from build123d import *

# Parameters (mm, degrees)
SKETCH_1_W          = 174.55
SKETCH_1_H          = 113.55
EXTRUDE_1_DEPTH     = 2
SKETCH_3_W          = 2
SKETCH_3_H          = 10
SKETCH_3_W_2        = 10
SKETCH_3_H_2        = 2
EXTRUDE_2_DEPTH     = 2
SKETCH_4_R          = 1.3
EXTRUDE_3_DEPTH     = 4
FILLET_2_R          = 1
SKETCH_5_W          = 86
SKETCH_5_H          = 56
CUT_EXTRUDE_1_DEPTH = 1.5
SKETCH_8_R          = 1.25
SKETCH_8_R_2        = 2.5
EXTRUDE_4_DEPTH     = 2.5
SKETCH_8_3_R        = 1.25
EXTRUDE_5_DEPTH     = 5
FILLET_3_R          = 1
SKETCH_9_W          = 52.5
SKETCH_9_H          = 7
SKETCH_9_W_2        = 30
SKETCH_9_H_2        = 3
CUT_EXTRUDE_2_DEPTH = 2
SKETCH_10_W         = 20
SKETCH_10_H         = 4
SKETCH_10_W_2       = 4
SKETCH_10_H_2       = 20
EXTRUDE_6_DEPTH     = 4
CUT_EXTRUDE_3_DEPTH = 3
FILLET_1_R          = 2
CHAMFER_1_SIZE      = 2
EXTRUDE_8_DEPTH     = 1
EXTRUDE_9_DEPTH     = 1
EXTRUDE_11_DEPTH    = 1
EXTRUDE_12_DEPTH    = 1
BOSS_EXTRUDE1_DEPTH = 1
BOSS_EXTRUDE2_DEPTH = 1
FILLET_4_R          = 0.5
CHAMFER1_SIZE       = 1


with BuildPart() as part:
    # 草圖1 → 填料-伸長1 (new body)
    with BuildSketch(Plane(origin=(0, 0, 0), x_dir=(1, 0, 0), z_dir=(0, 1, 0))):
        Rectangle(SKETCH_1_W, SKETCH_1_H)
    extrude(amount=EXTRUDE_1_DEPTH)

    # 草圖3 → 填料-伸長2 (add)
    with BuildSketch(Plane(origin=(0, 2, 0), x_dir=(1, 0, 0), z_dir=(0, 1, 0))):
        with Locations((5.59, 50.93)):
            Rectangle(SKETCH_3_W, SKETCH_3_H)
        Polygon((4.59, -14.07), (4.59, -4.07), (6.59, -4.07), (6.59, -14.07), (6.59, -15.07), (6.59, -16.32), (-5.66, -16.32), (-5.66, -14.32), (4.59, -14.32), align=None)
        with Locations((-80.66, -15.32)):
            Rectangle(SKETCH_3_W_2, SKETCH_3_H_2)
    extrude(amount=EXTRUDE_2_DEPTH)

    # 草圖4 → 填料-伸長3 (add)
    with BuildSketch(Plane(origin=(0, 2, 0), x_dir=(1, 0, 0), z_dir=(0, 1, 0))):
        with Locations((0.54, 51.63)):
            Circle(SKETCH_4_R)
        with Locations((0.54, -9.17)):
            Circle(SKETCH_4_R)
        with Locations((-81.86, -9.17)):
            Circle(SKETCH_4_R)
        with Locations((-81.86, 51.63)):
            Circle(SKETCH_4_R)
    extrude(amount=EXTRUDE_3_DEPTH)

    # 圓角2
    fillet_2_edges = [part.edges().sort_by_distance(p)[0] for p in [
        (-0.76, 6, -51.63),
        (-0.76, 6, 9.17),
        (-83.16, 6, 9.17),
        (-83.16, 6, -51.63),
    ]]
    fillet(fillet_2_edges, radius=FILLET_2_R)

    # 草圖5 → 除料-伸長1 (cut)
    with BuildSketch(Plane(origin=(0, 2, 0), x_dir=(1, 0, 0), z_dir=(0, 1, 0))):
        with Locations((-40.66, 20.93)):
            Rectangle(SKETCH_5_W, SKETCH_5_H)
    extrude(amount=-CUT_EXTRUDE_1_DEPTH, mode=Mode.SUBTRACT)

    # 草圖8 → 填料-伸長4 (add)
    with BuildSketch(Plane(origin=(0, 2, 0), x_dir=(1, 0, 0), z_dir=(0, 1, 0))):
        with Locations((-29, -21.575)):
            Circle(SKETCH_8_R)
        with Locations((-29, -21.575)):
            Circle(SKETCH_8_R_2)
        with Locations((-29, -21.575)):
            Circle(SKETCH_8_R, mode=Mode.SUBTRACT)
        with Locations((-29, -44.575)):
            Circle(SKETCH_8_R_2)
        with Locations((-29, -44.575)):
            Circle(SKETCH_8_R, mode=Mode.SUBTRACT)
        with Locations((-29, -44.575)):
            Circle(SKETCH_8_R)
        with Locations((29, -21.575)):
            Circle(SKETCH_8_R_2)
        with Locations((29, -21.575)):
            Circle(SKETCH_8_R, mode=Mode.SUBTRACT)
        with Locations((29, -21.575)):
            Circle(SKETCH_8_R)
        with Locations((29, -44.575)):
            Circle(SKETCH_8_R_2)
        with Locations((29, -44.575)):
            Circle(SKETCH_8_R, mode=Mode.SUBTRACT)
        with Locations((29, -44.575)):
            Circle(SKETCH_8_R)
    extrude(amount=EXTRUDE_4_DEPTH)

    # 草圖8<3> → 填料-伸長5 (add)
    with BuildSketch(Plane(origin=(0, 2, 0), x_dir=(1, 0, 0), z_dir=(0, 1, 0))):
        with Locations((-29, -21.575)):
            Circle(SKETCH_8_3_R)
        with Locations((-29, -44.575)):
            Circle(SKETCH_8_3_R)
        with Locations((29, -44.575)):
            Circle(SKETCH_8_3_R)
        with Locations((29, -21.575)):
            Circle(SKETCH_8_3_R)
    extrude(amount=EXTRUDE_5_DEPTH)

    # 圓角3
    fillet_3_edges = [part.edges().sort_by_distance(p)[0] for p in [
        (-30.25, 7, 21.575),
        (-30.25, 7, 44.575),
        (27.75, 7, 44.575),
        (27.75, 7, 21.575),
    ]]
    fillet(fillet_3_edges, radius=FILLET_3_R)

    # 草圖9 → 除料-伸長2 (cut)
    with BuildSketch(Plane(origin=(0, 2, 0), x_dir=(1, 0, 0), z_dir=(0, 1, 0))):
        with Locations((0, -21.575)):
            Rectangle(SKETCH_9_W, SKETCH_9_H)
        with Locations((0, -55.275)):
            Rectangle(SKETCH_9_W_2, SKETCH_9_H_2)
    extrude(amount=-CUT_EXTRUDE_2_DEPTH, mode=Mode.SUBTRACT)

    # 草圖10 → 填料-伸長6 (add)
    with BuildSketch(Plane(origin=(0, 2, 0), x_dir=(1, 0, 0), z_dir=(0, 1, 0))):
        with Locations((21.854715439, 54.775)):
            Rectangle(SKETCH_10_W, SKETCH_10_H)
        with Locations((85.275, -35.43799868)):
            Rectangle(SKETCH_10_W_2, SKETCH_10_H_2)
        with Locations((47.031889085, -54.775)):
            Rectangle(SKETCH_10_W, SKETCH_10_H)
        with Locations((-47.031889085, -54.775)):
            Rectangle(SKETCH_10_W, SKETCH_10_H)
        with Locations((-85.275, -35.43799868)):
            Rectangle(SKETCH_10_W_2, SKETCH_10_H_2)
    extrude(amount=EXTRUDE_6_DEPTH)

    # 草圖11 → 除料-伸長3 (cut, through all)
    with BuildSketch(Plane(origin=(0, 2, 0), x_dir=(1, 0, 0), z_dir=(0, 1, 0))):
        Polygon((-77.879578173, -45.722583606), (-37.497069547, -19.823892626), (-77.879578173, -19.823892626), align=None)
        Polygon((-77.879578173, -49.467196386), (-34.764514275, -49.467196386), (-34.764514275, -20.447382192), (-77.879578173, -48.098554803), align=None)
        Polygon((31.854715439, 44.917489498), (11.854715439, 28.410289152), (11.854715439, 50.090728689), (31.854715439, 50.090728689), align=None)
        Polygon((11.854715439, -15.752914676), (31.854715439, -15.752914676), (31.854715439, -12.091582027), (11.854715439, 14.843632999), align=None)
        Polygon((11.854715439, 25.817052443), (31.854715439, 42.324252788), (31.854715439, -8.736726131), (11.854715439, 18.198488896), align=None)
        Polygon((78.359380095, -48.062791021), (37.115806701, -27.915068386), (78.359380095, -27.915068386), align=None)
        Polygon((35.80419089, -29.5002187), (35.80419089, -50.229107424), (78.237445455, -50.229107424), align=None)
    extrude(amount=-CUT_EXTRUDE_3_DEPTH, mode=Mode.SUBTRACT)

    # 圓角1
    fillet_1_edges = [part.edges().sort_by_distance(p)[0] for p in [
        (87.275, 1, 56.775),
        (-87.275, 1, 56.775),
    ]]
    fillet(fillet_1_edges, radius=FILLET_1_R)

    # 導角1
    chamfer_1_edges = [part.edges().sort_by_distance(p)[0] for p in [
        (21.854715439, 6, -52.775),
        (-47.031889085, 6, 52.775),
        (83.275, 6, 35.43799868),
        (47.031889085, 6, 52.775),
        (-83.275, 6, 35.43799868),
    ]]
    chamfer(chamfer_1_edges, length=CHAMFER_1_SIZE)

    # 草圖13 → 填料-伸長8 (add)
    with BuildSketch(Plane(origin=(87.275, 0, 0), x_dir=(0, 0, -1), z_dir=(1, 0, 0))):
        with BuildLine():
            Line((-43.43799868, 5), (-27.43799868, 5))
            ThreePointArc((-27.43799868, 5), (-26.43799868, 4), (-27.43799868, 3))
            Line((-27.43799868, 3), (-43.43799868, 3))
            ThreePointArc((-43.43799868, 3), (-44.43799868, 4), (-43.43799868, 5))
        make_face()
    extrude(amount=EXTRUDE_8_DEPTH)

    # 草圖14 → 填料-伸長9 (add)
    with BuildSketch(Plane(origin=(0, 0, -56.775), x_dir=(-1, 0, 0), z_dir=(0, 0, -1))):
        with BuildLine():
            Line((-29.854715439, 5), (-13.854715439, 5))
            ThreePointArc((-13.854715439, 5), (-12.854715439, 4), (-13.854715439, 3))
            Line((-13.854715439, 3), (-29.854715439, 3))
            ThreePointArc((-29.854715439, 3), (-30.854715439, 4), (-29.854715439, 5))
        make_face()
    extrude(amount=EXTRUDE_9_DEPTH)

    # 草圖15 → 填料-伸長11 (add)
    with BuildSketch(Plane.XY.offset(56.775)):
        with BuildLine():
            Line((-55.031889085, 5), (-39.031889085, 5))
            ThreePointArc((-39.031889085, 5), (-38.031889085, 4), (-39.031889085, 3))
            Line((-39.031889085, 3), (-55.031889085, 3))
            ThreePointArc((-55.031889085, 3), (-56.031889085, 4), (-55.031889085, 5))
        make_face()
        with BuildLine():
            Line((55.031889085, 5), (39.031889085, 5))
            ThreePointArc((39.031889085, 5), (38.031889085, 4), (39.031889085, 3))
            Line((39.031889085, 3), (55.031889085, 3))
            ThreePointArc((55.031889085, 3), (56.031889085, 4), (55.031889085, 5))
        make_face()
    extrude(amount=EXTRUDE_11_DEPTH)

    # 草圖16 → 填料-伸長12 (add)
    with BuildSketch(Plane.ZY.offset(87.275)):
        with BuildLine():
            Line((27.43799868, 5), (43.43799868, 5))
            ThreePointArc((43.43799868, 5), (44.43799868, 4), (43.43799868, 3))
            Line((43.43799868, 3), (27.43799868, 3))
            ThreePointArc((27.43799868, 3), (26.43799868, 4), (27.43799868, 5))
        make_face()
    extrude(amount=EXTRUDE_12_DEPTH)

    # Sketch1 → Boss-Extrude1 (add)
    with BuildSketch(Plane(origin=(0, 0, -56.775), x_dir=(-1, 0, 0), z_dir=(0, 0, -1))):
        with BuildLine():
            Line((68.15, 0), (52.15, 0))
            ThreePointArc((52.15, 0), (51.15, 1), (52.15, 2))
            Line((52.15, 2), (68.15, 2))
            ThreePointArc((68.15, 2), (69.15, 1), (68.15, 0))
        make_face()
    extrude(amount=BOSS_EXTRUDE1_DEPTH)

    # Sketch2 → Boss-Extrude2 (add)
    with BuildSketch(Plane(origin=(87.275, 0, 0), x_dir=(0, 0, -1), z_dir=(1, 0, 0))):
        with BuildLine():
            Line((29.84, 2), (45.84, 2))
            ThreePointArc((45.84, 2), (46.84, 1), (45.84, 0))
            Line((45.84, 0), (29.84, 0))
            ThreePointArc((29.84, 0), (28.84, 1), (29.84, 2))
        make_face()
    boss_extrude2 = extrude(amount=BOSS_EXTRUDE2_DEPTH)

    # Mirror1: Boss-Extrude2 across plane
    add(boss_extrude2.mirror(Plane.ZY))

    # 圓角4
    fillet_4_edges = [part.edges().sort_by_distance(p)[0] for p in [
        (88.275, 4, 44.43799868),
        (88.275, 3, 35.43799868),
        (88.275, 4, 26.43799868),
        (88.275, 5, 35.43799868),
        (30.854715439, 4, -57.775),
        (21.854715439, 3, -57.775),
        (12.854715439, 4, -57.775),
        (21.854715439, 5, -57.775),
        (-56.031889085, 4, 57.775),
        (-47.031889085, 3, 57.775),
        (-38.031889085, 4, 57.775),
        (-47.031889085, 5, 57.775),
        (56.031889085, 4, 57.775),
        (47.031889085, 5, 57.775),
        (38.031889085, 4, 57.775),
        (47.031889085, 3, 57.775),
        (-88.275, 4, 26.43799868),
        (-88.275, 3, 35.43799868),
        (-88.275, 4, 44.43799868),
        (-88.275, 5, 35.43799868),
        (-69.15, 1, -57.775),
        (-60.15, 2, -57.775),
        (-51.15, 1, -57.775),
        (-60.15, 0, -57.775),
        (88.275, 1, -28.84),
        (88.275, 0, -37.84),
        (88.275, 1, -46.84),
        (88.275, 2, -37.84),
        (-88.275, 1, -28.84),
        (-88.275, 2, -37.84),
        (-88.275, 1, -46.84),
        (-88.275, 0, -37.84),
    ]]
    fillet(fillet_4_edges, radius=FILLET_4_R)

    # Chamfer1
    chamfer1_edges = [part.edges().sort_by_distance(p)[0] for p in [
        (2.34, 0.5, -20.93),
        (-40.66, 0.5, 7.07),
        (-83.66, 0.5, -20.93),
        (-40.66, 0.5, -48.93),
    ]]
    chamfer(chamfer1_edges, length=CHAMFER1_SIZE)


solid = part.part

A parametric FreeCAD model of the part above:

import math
import FreeCAD as App
import Part
import Sketcher


def edges_at(feature, points):
    """Names of the edges that pass closest to the given points."""
    edges = feature.Shape.Edges
    near = lambda p: min(range(len(edges)), key=lambda i: edges[i].distToShape(Part.Vertex(*p))[0])
    return sorted({f"Edge{near(p) + 1}" for p in points})


def add_polygon(sketch, points):
    """Adds a closed chain of lines whose ends are joined by coincident constraints."""
    first, n = sketch.GeometryCount, len(points)
    for a, b in zip(points, points[1:] + points[:1]):
        sketch.addGeometry(Part.LineSegment(App.Vector(*a, 0), App.Vector(*b, 0)), False)
    for i in range(n):
        sketch.addConstraint(Sketcher.Constraint("Coincident", first + i, 2, first + (i + 1) % n, 1))

doc = App.newDocument("Part")
body = doc.addObject("PartDesign::Body", "Body")

# Sketch on XZ plane
sketch1 = body.newObject("Sketcher::SketchObject", "Sketch")
sketch1.AttachmentSupport = (doc.getObject("XZ_Plane"), [""])
sketch1.MapMode = "FlatFace"
add_polygon(sketch1, [(-87, -57), (-87, 57), (87, 57), (87, -57)])  # lines 0-3
sketch1.addConstraint([
    Sketcher.Constraint("Vertical", 0),
    Sketcher.Constraint("Horizontal", 1),
    Sketcher.Constraint("Vertical", 2),
    Sketcher.Constraint("Horizontal", 3),
    Sketcher.Constraint("Symmetric", 0, 2, 2, 2, -1, 1),
    Sketcher.Constraint("DistanceX", 1, 1, 1, 2, 174.55),
    Sketcher.Constraint("DistanceY", 0, 1, 0, 2, 113.55),
])
pad1 = body.newObject("PartDesign::Pad", "Pad")
pad1.Profile = sketch1
pad1.Length = 2
pad1.Reversed = True

# Sketch on XZ plane
sketch2 = body.newObject("Sketcher::SketchObject", "Sketch001")
sketch2.AttachmentSupport = (doc.getObject("XZ_Plane"), [""])
sketch2.MapMode = "FlatFace"
sketch2.AttachmentOffset = App.Placement(App.Vector(0, 0, -2), App.Rotation())
add_polygon(sketch2, [(4.6, -55.9), (4.6, -45.9), (6.6, -45.9), (6.6, -55.9)])  # lines 0-3
add_polygon(sketch2, [(4.6, 4.1), (4.6, 14.3), (-5.7, 14.3), (-5.7, 16.3), (6.6, 16.3), (6.6, 4.1)])  # lines 4-9
add_polygon(sketch2, [(-85.7, 14.3), (-85.7, 16.3), (-75.7, 16.3), (-75.7, 14.3)])  # lines 10-13
sketch2.addConstraint([
    Sketcher.Constraint("Vertical", 0),
    Sketcher.Constraint("Horizontal", 1),
    Sketcher.Constraint("Vertical", 2),
    Sketcher.Constraint("Horizontal", 3),
    Sketcher.Constraint("Vertical", 4),
    Sketcher.Constraint("Horizontal", 5),
    Sketcher.Constraint("Vertical", 6),
    Sketcher.Constraint("Horizontal", 7),
    Sketcher.Constraint("Vertical", 8),
    Sketcher.Constraint("Horizontal", 9),
    Sketcher.Constraint("Vertical", 10),
    Sketcher.Constraint("Horizontal", 11),
    Sketcher.Constraint("Vertical", 12),
    Sketcher.Constraint("Horizontal", 13),
    Sketcher.Constraint("Horizontal", 7, 2, 10, 2),
    Sketcher.Constraint("Horizontal", 5, 2, 12, 2),
    Sketcher.Constraint("Vertical", 3, 2, 4, 2),
    Sketcher.Constraint("Vertical", 2, 2, 7, 2),
    Sketcher.Constraint("Equal", 13, 0),
    Sketcher.Constraint("Equal", 5, 4),
    Sketcher.Constraint("Equal", 9, 6),
    Sketcher.Constraint("DistanceX", 1, 1, 1, 2, 2.0),
    Sketcher.Constraint("DistanceX", 11, 1, 11, 2, 10.0),
    Sketcher.Constraint("DistanceY", 1, 2, 8, 2, 50.0),
    Sketcher.Constraint("DistanceX", 10, 2, 6, 2, 80.0),
    Sketcher.Constraint("DistanceX", 5, 2, 5, 1, 10.25),
    Sketcher.Constraint("DistanceX", -1, 1, 0, 2, 4.59),
    Sketcher.Constraint("DistanceY", 0, 2, -1, 1, 45.93),
])
pad2 = body.newObject("PartDesign::Pad", "Pad001")
pad2.Profile = sketch2
pad2.Length = 2
pad2.Reversed = True

# Sketch on XZ plane
sketch3 = body.newObject("Sketcher::SketchObject", "Sketch002")
sketch3.AttachmentSupport = (doc.getObject("XZ_Plane"), [""])
sketch3.MapMode = "FlatFace"
sketch3.AttachmentOffset = App.Placement(App.Vector(0, 0, -2), App.Rotation())
sketch3.addGeometry([
    Part.Circle(App.Vector(0.5, -51.6, 0), App.Vector(0, 0, 1), 1.3),
    Part.Circle(App.Vector(0.5, 9.2, 0), App.Vector(0, 0, 1), 1.3),
    Part.Circle(App.Vector(-81.9, 9.2, 0), App.Vector(0, 0, 1), 1.3),
    Part.Circle(App.Vector(-81.9, -51.6, 0), App.Vector(0, 0, 1), 1.3),
], False)
sketch3.addConstraint([
    Sketcher.Constraint("Equal", 0, 1),
    Sketcher.Constraint("Equal", 1, 2),
    Sketcher.Constraint("Equal", 2, 3),
    Sketcher.Constraint("Horizontal", 1, 3, 2, 3),
    Sketcher.Constraint("Horizontal", 0, 3, 3, 3),
    Sketcher.Constraint("Vertical", 0, 3, 1, 3),
    Sketcher.Constraint("Vertical", 2, 3, 3, 3),
    Sketcher.Constraint("Diameter", 0, 2.6),
    Sketcher.Constraint("DistanceY", 0, 3, 1, 3, 60.8),
    Sketcher.Constraint("DistanceX", 2, 3, 1, 3, 82.4),
    Sketcher.Constraint("DistanceX", -1, 1, 0, 3, 0.54),
    Sketcher.Constraint("DistanceY", 0, 3, -1, 1, 51.63),
])
pad3 = body.newObject("PartDesign::Pad", "Pad002")
pad3.Profile = sketch3
pad3.Length = 4
pad3.Reversed = True
doc.recompute()

fillet = body.newObject("PartDesign::Fillet", "Fillet")
fillet.Base = (pad3, edges_at(pad3, [
    (-0.76, 6, -51.63),
    (-0.76, 6, 9.17),
    (-83.16, 6, 9.17),
    (-83.16, 6, -51.63),
]))
fillet.Radius = 1

# Sketch on XZ plane
sketch4 = body.newObject("Sketcher::SketchObject", "Sketch003")
sketch4.AttachmentSupport = (doc.getObject("XZ_Plane"), [""])
sketch4.MapMode = "FlatFace"
sketch4.AttachmentOffset = App.Placement(App.Vector(0, 0, -2), App.Rotation())
add_polygon(sketch4, [(-84, -49), (-84, 7), (2, 7), (2, -49)])  # lines 0-3
sketch4.addConstraint([
    Sketcher.Constraint("Vertical", 0),
    Sketcher.Constraint("Horizontal", 1),
    Sketcher.Constraint("Vertical", 2),
    Sketcher.Constraint("Horizontal", 3),
    Sketcher.Constraint("DistanceX", 1, 1, 1, 2, 86.0),
    Sketcher.Constraint("DistanceY", 0, 1, 0, 2, 56.0),
    Sketcher.Constraint("DistanceX", 0, 2, -1, 1, 83.66),
    Sketcher.Constraint("DistanceY", -1, 1, 0, 2, 7.07),
])
pocket1 = body.newObject("PartDesign::Pocket", "Pocket")
pocket1.Profile = sketch4
pocket1.Length = 1.5
pocket1.Reversed = True

# Sketch on XZ plane
sketch5 = body.newObject("Sketcher::SketchObject", "Sketch004")
sketch5.AttachmentSupport = (doc.getObject("XZ_Plane"), [""])
sketch5.MapMode = "FlatFace"
sketch5.AttachmentOffset = App.Placement(App.Vector(0, 0, -2), App.Rotation())
sketch5.addGeometry([
    Part.Circle(App.Vector(-29, 21.6, 0), App.Vector(0, 0, 1), 2.5),  # 0
    Part.Circle(App.Vector(-29, 21.6, 0), App.Vector(0, 0, 1), 1.2),  # 1
    Part.Circle(App.Vector(-29, 44.6, 0), App.Vector(0, 0, 1), 2.5),  # 2
    Part.Circle(App.Vector(29, 21.6, 0), App.Vector(0, 0, 1), 2.5),  # 3
    Part.Circle(App.Vector(29, 44.6, 0), App.Vector(0, 0, 1), 2.5),  # 4
], False)
sketch5.addConstraint([
    Sketcher.Constraint("Coincident", 1, 3, 0, 3),
    Sketcher.Constraint("Equal", 0, 2),
    Sketcher.Constraint("Equal", 2, 3),
    Sketcher.Constraint("Equal", 3, 4),
    Sketcher.Constraint("Symmetric", 0, 3, 3, 3, -2),
    Sketcher.Constraint("Symmetric", 2, 3, 4, 3, -2),
    Sketcher.Constraint("Vertical", 1, 3, 2, 3),
    Sketcher.Constraint("Diameter", 0, 5.0),
    Sketcher.Constraint("Diameter", 1, 2.5),
    Sketcher.Constraint("DistanceX", 0, 3, -1, 1, 29.0),
    Sketcher.Constraint("DistanceY", 0, 3, 2, 3, 23.0),
    Sketcher.Constraint("DistanceY", -1, 1, 0, 3, 21.575),
])
pad4 = body.newObject("PartDesign::Pad", "Pad003")
pad4.Profile = sketch5
pad4.Length = 2.5
pad4.Reversed = True

# Sketch on XZ plane
sketch6 = body.newObject("Sketcher::SketchObject", "Sketch005")
sketch6.AttachmentSupport = (doc.getObject("XZ_Plane"), [""])
sketch6.MapMode = "FlatFace"
sketch6.AttachmentOffset = App.Placement(App.Vector(0, 0, -2), App.Rotation())
sketch6.addGeometry([
    Part.Circle(App.Vector(-29, 21.6, 0), App.Vector(0, 0, 1), 1.2),
    Part.Circle(App.Vector(-29, 44.6, 0), App.Vector(0, 0, 1), 1.2),
    Part.Circle(App.Vector(29, 44.6, 0), App.Vector(0, 0, 1), 1.2),
    Part.Circle(App.Vector(29, 21.6, 0), App.Vector(0, 0, 1), 1.2),
], False)
sketch6.addConstraint([
    Sketcher.Constraint("Equal", 0, 1),
    Sketcher.Constraint("Equal", 1, 2),
    Sketcher.Constraint("Equal", 2, 3),
    Sketcher.Constraint("Symmetric", 1, 3, 2, 3, -2),
    Sketcher.Constraint("Symmetric", 0, 3, 3, 3, -2),
    Sketcher.Constraint("Vertical", 0, 3, 1, 3),
    Sketcher.Constraint("Diameter", 0, 2.5),
    Sketcher.Constraint("DistanceX", 0, 3, -1, 1, 29.0),
    Sketcher.Constraint("DistanceY", 0, 3, 1, 3, 23.0),
    Sketcher.Constraint("DistanceY", -1, 1, 0, 3, 21.575),
])
pad5 = body.newObject("PartDesign::Pad", "Pad004")
pad5.Profile = sketch6
pad5.Length = 5
pad5.Reversed = True
doc.recompute()

fillet2 = body.newObject("PartDesign::Fillet", "Fillet001")
fillet2.Base = (pad5, edges_at(pad5, [
    (-30.25, 7, 21.575),
    (-30.25, 7, 44.575),
    (27.75, 7, 44.575),
    (27.75, 7, 21.575),
]))
fillet2.Radius = 1

# Sketch on XZ plane
sketch7 = body.newObject("Sketcher::SketchObject", "Sketch006")
sketch7.AttachmentSupport = (doc.getObject("XZ_Plane"), [""])
sketch7.MapMode = "FlatFace"
sketch7.AttachmentOffset = App.Placement(App.Vector(0, 0, -2), App.Rotation())
add_polygon(sketch7, [(-26.2, 18.1), (-26.2, 25.1), (26.2, 25.1), (26.2, 18.1)])  # lines 0-3
add_polygon(sketch7, [(-15, 53.8), (-15, 56.8), (15, 56.8), (15, 53.8)])  # lines 4-7
sketch7.addConstraint([
    Sketcher.Constraint("Vertical", 0),
    Sketcher.Constraint("Horizontal", 1),
    Sketcher.Constraint("Vertical", 2),
    Sketcher.Constraint("Horizontal", 3),
    Sketcher.Constraint("Vertical", 4),
    Sketcher.Constraint("Horizontal", 5),
    Sketcher.Constraint("Vertical", 6),
    Sketcher.Constraint("Horizontal", 7),
    Sketcher.Constraint("DistanceX", 5, 1, 5, 2, 30.0),
    Sketcher.Constraint("DistanceY", 0, 1, 0, 2, 7.0),
    Sketcher.Constraint("DistanceY", 4, 1, 4, 2, 3.0),
    Sketcher.Constraint("DistanceX", 1, 1, 1, 2, 52.5),
    Sketcher.Constraint("DistanceX", 4, 2, -1, 1, 15.0),
    Sketcher.Constraint("DistanceY", 0, 2, 4, 2, 31.7),
    Sketcher.Constraint("DistanceX", 0, 2, -1, 1, 26.25),
    Sketcher.Constraint("DistanceY", -1, 1, 0, 2, 25.075),
])
pocket2 = body.newObject("PartDesign::Pocket", "Pocket001")
pocket2.Profile = sketch7
pocket2.Length = 2
pocket2.Reversed = True

# Sketch on XZ plane
sketch8 = body.newObject("Sketcher::SketchObject", "Sketch007")
sketch8.AttachmentSupport = (doc.getObject("XZ_Plane"), [""])
sketch8.MapMode = "FlatFace"
sketch8.AttachmentOffset = App.Placement(App.Vector(0, 0, -2), App.Rotation())
add_polygon(sketch8, [(11.9, -56.8), (11.9, -52.8), (31.9, -52.8), (31.9, -56.8)])  # lines 0-3
add_polygon(sketch8, [(83.3, 25.4), (83.3, 45.4), (87.3, 45.4), (87.3, 25.4)])  # lines 4-7
add_polygon(sketch8, [(37, 52.8), (37, 56.8), (57, 56.8), (57, 52.8)])  # lines 8-11
add_polygon(sketch8, [(-57, 52.8), (-57, 56.8), (-37, 56.8), (-37, 52.8)])  # lines 12-15
add_polygon(sketch8, [(-87.3, 25.4), (-87.3, 45.4), (-83.3, 45.4), (-83.3, 25.4)])  # lines 16-19
sketch8.addConstraint([
    Sketcher.Constraint("Vertical", 0),
    Sketcher.Constraint("Horizontal", 1),
    Sketcher.Constraint("Vertical", 2),
    Sketcher.Constraint("Horizontal", 3),
    Sketcher.Constraint("Vertical", 4),
    Sketcher.Constraint("Horizontal", 5),
    Sketcher.Constraint("Vertical", 6),
    Sketcher.Constraint("Horizontal", 7),
    Sketcher.Constraint("Vertical", 8),
    Sketcher.Constraint("Horizontal", 9),
    Sketcher.Constraint("Vertical", 10),
    Sketcher.Constraint("Horizontal", 11),
    Sketcher.Constraint("Vertical", 12),
    Sketcher.Constraint("Horizontal", 13),
    Sketcher.Constraint("Vertical", 14),
    Sketcher.Constraint("Horizontal", 15),
    Sketcher.Constraint("Vertical", 16),
    Sketcher.Constraint("Horizontal", 17),
    Sketcher.Constraint("Vertical", 18),
    Sketcher.Constraint("Horizontal", 19),
    Sketcher.Constraint("Symmetric", 9, 2, 12, 2, -2),
    Sketcher.Constraint("Symmetric", 11, 2, 14, 2, -2),
    Sketcher.Constraint("Symmetric", 5, 2, 16, 2, -2),
    Sketcher.Constraint("Symmetric", 7, 2, 18, 2, -2),
    Sketcher.Constraint("Equal", 3, 9),
    Sketcher.Constraint("Equal", 19, 0),
    Sketcher.Constraint("Equal", 15, 4),
    Sketcher.Constraint("Equal", 2, 8),
    Sketcher.Constraint("DistanceX", 1, 1, 1, 2, 20.0),
    Sketcher.Constraint("DistanceX", 5, 1, 5, 2, 4.0),
    Sketcher.Constraint("DistanceY", 1, 2, 8, 2, 109.55),
    Sketcher.Constraint("DistanceY", 0, 2, -1, 1, 52.775),
    Sketcher.Constraint("DistanceX", -1, 1, 4, 2, 83.275),
    Sketcher.Constraint("DistanceY", -1, 1, 4, 2, 45.437999),
    Sketcher.Constraint("DistanceX", -1, 1, 8, 2, 37.031889),
    Sketcher.Constraint("DistanceX", -1, 1, 0, 2, 11.854715),
])
pad6 = body.newObject("PartDesign::Pad", "Pad005")
pad6.Profile = sketch8
pad6.Length = 4
pad6.Reversed = True

# Sketch on XZ plane
sketch9 = body.newObject("Sketcher::SketchObject", "Sketch008")
sketch9.AttachmentSupport = (doc.getObject("XZ_Plane"), [""])
sketch9.MapMode = "FlatFace"
sketch9.AttachmentOffset = App.Placement(App.Vector(0, 0, -2), App.Rotation())
add_polygon(sketch9, [(-77.9, 45.7), (-37.5, 19.8), (-77.9, 19.8)])  # lines 0-2
add_polygon(sketch9, [(-77.9, 49.5), (-34.8, 49.5), (-34.8, 20.4), (-77.9, 48.1)])  # lines 3-6
add_polygon(sketch9, [(11.9, -28.4), (31.9, -44.9), (31.9, -50.1), (11.9, -50.1)])  # lines 7-10
add_polygon(sketch9, [(11.9, 15.8), (31.9, 15.8), (31.9, 12.1), (11.9, -14.8)])  # lines 11-14
add_polygon(sketch9, [(31.9, -42.3), (11.9, -25.8), (11.9, -18.2), (31.9, 8.7)])  # lines 15-18
add_polygon(sketch9, [(37.1, 27.9), (78.4, 48.1), (78.4, 27.9)])  # lines 19-21
add_polygon(sketch9, [(35.8, 29.5), (35.8, 50.2), (78.2, 50.2)])  # lines 22-24
sketch9.addConstraint([
    Sketcher.Constraint("Horizontal", 1),
    Sketcher.Constraint("Vertical", 2),
    Sketcher.Constraint("Horizontal", 3),
    Sketcher.Constraint("Vertical", 4),
    Sketcher.Constraint("Vertical", 6),
    Sketcher.Constraint("Vertical", 8),
    Sketcher.Constraint("Horizontal", 9),
    Sketcher.Constraint("Vertical", 10),
    Sketcher.Constraint("Horizontal", 11),
    Sketcher.Constraint("Vertical", 12),
    Sketcher.Constraint("Vertical", 14),
    Sketcher.Constraint("Vertical", 16),
    Sketcher.Constraint("Vertical", 18),
    Sketcher.Constraint("Vertical", 20),
    Sketcher.Constraint("Horizontal", 21),
    Sketcher.Constraint("Vertical", 22),
    Sketcher.Constraint("Horizontal", 23),
    Sketcher.Constraint("Parallel", 0, 5),
    Sketcher.Constraint("Parallel", 7, 15),
    Sketcher.Constraint("Parallel", 13, 17),
    Sketcher.Constraint("Parallel", 19, 24),
    Sketcher.Constraint("Vertical", 2, 2, 5, 2),
    Sketcher.Constraint("Vertical", 8, 2, 11, 2),
    Sketcher.Constraint("Vertical", 10, 2, 13, 2),
    Sketcher.Constraint("Vertical", 14, 2, 15, 2),
    Sketcher.Constraint("Vertical", 12, 2, 17, 2),
    Sketcher.Constraint("DistanceX", 9, 2, 9, 1, 20.0),
    Sketcher.Constraint("DistanceY", 7, 2, 16, 2, 26.719001),
    Sketcher.Constraint("DistanceX", 1, 2, 1, 1, 40.382509),
    Sketcher.Constraint("DistanceY", 2, 1, 2, 2, 25.898691),
    Sketcher.Constraint("DistanceY", 6, 1, 6, 2, 1.368642),
    Sketcher.Constraint("DistanceY", 8, 2, 8, 1, 5.173239),
    Sketcher.Constraint("DistanceY", 10, 1, 10, 2, 21.68044),
    Sketcher.Constraint("DistanceY", 18, 2, 18, 1, 51.060979),
    Sketcher.Constraint("DistanceY", 22, 1, 22, 2, 20.728889),
    Sketcher.Constraint("DistanceY", 4, 2, 2, 2, 25.275201),
    Sketcher.Constraint("Distance", 13, 33.548559),
    Sketcher.Constraint("DistanceX", 3, 1, 3, 2, 43.115064),
    Sketcher.Constraint("DistanceX", 21, 2, 21, 1, 41.243573),
    Sketcher.Constraint("DistanceX", 23, 1, 23, 2, 42.433255),
    Sketcher.Constraint("DistanceY", 12, 2, 12, 1, 3.661333),
    Sketcher.Constraint("DistanceX", 0, 2, -1, 1, 37.49707),
    Sketcher.Constraint("DistanceY", 7, 2, -1, 1, 44.917489),
    Sketcher.Constraint("DistanceX", -1, 1, 19, 2, 78.35938),
    Sketcher.Constraint("DistanceY", -1, 1, 19, 2, 48.062791),
    Sketcher.Constraint("DistanceX", -1, 1, 22, 2, 35.804191),
    Sketcher.Constraint("DistanceY", -1, 1, 24, 2, 29.500219),
    Sketcher.Constraint("DistanceX", 4, 2, 7, 2, 66.61923),
    Sketcher.Constraint("DistanceY", 7, 2, 4, 2, 65.364872),
    Sketcher.Constraint("DistanceY", 10, 2, 12, 2, 40.501871),
])
pocket3 = body.newObject("PartDesign::Pocket", "Pocket002")
pocket3.Profile = sketch9
pocket3.Type = "ThroughAll"
pocket3.Reversed = True
doc.recompute()

fillet3 = body.newObject("PartDesign::Fillet", "Fillet002")
fillet3.Base = (pocket3, edges_at(pocket3, [(87.275, 1, 56.775), (-87.275, 1, 56.775)]))
fillet3.Radius = 2
doc.recompute()

chamfer = body.newObject("PartDesign::Chamfer", "Chamfer")
chamfer.Base = (fillet3, edges_at(fillet3, [
    (21.855, 6, -52.775),
    (-47.032, 6, 52.775),
    (83.275, 6, 35.438),
    (47.032, 6, 52.775),
    (-83.275, 6, 35.438),
]))
chamfer.Size = 2

# Sketch on YZ plane
sketch10 = body.newObject("Sketcher::SketchObject", "Sketch009")
sketch10.AttachmentSupport = (doc.getObject("YZ_Plane"), [""])
sketch10.MapMode = "FlatFace"
sketch10.AttachmentOffset = App.Placement(App.Vector(0, 0, 87.275), App.Rotation())
sketch10.addGeometry([
    Part.LineSegment(App.Vector(5, 27.4, 0), App.Vector(5, 43.4, 0)),
    Part.ArcOfCircle(Part.Circle(App.Vector(4, 43.4, 0), App.Vector(0, 0, 1), 1), math.radians(0), math.radians(180)),
    Part.LineSegment(App.Vector(3, 43.4, 0), App.Vector(3, 27.4, 0)),
    Part.ArcOfCircle(Part.Circle(App.Vector(4, 27.4, 0), App.Vector(0, 0, 1), 1), math.radians(180), math.radians(360)),
], False)
sketch10.addConstraint([
    Sketcher.Constraint("Tangent", 0, 2, 1, 1),
    Sketcher.Constraint("Tangent", 1, 2, 2, 1),
    Sketcher.Constraint("Tangent", 2, 2, 3, 1),
    Sketcher.Constraint("Tangent", 3, 2, 0, 1),
    Sketcher.Constraint("Vertical", 0),
    Sketcher.Constraint("Vertical", 2),
    Sketcher.Constraint("Radius", 1, 1.0),
    Sketcher.Constraint("DistanceY", 0, 1, 0, 2, 16.0),
    Sketcher.Constraint("DistanceX", -1, 1, 1, 3, 4.0),
    Sketcher.Constraint("DistanceY", -1, 1, 1, 3, 43.437999),
])
pad7 = body.newObject("PartDesign::Pad", "Pad006")
pad7.Profile = sketch10
pad7.Length = 1

# Sketch on XY plane
sketch11 = body.newObject("Sketcher::SketchObject", "Sketch010")
sketch11.AttachmentSupport = (doc.getObject("XY_Plane"), [""])
sketch11.MapMode = "FlatFace"
sketch11.AttachmentOffset = App.Placement(App.Vector(0, 0, -56.775), App.Rotation())
sketch11.addGeometry([
    Part.LineSegment(App.Vector(13.9, 5, 0), App.Vector(29.9, 5, 0)),
    Part.ArcOfCircle(Part.Circle(App.Vector(29.9, 4, 0), App.Vector(0, 0, 1), 1), math.radians(-90), math.radians(90)),
    Part.LineSegment(App.Vector(29.9, 3, 0), App.Vector(13.9, 3, 0)),
    Part.ArcOfCircle(Part.Circle(App.Vector(13.9, 4, 0), App.Vector(0, 0, 1), 1), math.radians(90), math.radians(270)),
], False)
sketch11.addConstraint([
    Sketcher.Constraint("Tangent", 0, 2, 1, 2),
    Sketcher.Constraint("Tangent", 1, 1, 2, 1),
    Sketcher.Constraint("Tangent", 2, 2, 3, 2),
    Sketcher.Constraint("Tangent", 3, 1, 0, 1),
    Sketcher.Constraint("Horizontal", 0),
    Sketcher.Constraint("Horizontal", 2),
    Sketcher.Constraint("Radius", 1, 1.0),
    Sketcher.Constraint("DistanceX", 0, 1, 0, 2, 16.0),
    Sketcher.Constraint("DistanceY", -1, 1, 1, 3, 4.0),
    Sketcher.Constraint("DistanceX", -1, 1, 1, 3, 29.854715),
])
pad8 = body.newObject("PartDesign::Pad", "Pad007")
pad8.Profile = sketch11
pad8.Length = 1
pad8.Reversed = True

# Sketch on XY plane
sketch12 = body.newObject("Sketcher::SketchObject", "Sketch011")
sketch12.AttachmentSupport = (doc.getObject("XY_Plane"), [""])
sketch12.MapMode = "FlatFace"
sketch12.AttachmentOffset = App.Placement(App.Vector(0, 0, 56.775), App.Rotation())
sketch12.addGeometry([
    Part.LineSegment(App.Vector(-39, 5, 0), App.Vector(-55, 5, 0)),  # 0
    Part.ArcOfCircle(Part.Circle(App.Vector(-55, 4, 0), App.Vector(0, 0, 1), 1), math.radians(90), math.radians(270)),  # 1
    Part.LineSegment(App.Vector(-55, 3, 0), App.Vector(-39, 3, 0)),  # 2
    Part.ArcOfCircle(Part.Circle(App.Vector(-39, 4, 0), App.Vector(0, 0, 1), 1), math.radians(-90), math.radians(90)),  # 3
    Part.LineSegment(App.Vector(55, 5, 0), App.Vector(39, 5, 0)),  # 4
    Part.ArcOfCircle(Part.Circle(App.Vector(39, 4, 0), App.Vector(0, 0, 1), 1), math.radians(90), math.radians(270)),  # 5
    Part.LineSegment(App.Vector(39, 3, 0), App.Vector(55, 3, 0)),  # 6
    Part.ArcOfCircle(Part.Circle(App.Vector(55, 4, 0), App.Vector(0, 0, 1), 1), math.radians(-90), math.radians(90)),  # 7
], False)
sketch12.addConstraint([
    Sketcher.Constraint("Tangent", 0, 2, 1, 1),
    Sketcher.Constraint("Tangent", 1, 2, 2, 1),
    Sketcher.Constraint("Tangent", 2, 2, 3, 1),
    Sketcher.Constraint("Tangent", 3, 2, 0, 1),
    Sketcher.Constraint("Tangent", 4, 2, 5, 1),
    Sketcher.Constraint("Tangent", 5, 2, 6, 1),
    Sketcher.Constraint("Tangent", 6, 2, 7, 1),
    Sketcher.Constraint("Tangent", 7, 2, 4, 1),
    Sketcher.Constraint("Horizontal", 0),
    Sketcher.Constraint("Horizontal", 2),
    Sketcher.Constraint("Horizontal", 4),
    Sketcher.Constraint("Horizontal", 6),
    Sketcher.Constraint("Equal", 3, 5),
    Sketcher.Constraint("Symmetric", 3, 3, 5, 3, -2),
    Sketcher.Constraint("Equal", 2, 4),
    Sketcher.Constraint("Radius", 1, 1.0),
    Sketcher.Constraint("DistanceX", 0, 2, 0, 1, 16.0),
    Sketcher.Constraint("DistanceY", -1, 1, 1, 3, 4.0),
    Sketcher.Constraint("DistanceX", 1, 3, -1, 1, 55.031889),
])
pad9 = body.newObject("PartDesign::Pad", "Pad008")
pad9.Profile = sketch12
pad9.Length = 1

# Sketch on YZ plane
sketch13 = body.newObject("Sketcher::SketchObject", "Sketch012")
sketch13.AttachmentSupport = (doc.getObject("YZ_Plane"), [""])
sketch13.MapMode = "FlatFace"
sketch13.AttachmentOffset = App.Placement(App.Vector(0, 0, -87.275), App.Rotation())
sketch13.addGeometry([
    Part.LineSegment(App.Vector(5, 43.4, 0), App.Vector(5, 27.4, 0)),
    Part.ArcOfCircle(Part.Circle(App.Vector(4, 27.4, 0), App.Vector(0, 0, 1), 1), math.radians(180), math.radians(360)),
    Part.LineSegment(App.Vector(3, 27.4, 0), App.Vector(3, 43.4, 0)),
    Part.ArcOfCircle(Part.Circle(App.Vector(4, 43.4, 0), App.Vector(0, 0, 1), 1), math.radians(0), math.radians(180)),
], False)
sketch13.addConstraint([
    Sketcher.Constraint("Tangent", 0, 2, 1, 2),
    Sketcher.Constraint("Tangent", 1, 1, 2, 1),
    Sketcher.Constraint("Tangent", 2, 2, 3, 2),
    Sketcher.Constraint("Tangent", 3, 1, 0, 1),
    Sketcher.Constraint("Vertical", 0),
    Sketcher.Constraint("Vertical", 2),
    Sketcher.Constraint("Radius", 1, 1.0),
    Sketcher.Constraint("DistanceY", 0, 2, 0, 1, 16.0),
    Sketcher.Constraint("DistanceX", -1, 1, 1, 3, 4.0),
    Sketcher.Constraint("DistanceY", -1, 1, 1, 3, 27.437999),
])
pad10 = body.newObject("PartDesign::Pad", "Pad009")
pad10.Profile = sketch13
pad10.Length = 1
pad10.Reversed = True

# Sketch on XY plane
sketch14 = body.newObject("Sketcher::SketchObject", "Sketch013")
sketch14.AttachmentSupport = (doc.getObject("XY_Plane"), [""])
sketch14.MapMode = "FlatFace"
sketch14.AttachmentOffset = App.Placement(App.Vector(0, 0, -56.775), App.Rotation())
sketch14.addGeometry([
    Part.LineSegment(App.Vector(-52.1, 0, 0), App.Vector(-68.2, 0, 0)),
    Part.ArcOfCircle(Part.Circle(App.Vector(-68.2, 1, 0), App.Vector(0, 0, 1), 1), math.radians(90), math.radians(270)),
    Part.LineSegment(App.Vector(-68.2, 2, 0), App.Vector(-52.1, 2, 0)),
    Part.ArcOfCircle(Part.Circle(App.Vector(-52.1, 1, 0), App.Vector(0, 0, 1), 1), math.radians(-90), math.radians(90)),
], False)
sketch14.addConstraint([
    Sketcher.Constraint("Tangent", 0, 2, 1, 2),
    Sketcher.Constraint("Tangent", 1, 1, 2, 1),
    Sketcher.Constraint("Tangent", 2, 2, 3, 2),
    Sketcher.Constraint("Tangent", 3, 1, 0, 1),
    Sketcher.Constraint("Horizontal", 0),
    Sketcher.Constraint("Horizontal", 2),
    Sketcher.Constraint("PointOnObject", 0, 2, -1),
    Sketcher.Constraint("Radius", 1, 1.0),
    Sketcher.Constraint("DistanceX", 0, 2, 0, 1, 16.0),
    Sketcher.Constraint("DistanceX", 1, 3, -1, 1, 68.15),
])
pad11 = body.newObject("PartDesign::Pad", "Pad010")
pad11.Profile = sketch14
pad11.Length = 1
pad11.Reversed = True

# Sketch on YZ plane
sketch15 = body.newObject("Sketcher::SketchObject", "Sketch014")
sketch15.AttachmentSupport = (doc.getObject("YZ_Plane"), [""])
sketch15.MapMode = "FlatFace"
sketch15.AttachmentOffset = App.Placement(App.Vector(0, 0, 87.275), App.Rotation())
sketch15.addGeometry([
    Part.LineSegment(App.Vector(2, -45.8, 0), App.Vector(2, -29.8, 0)),
    Part.ArcOfCircle(Part.Circle(App.Vector(1, -29.8, 0), App.Vector(0, 0, 1), 1), math.radians(0), math.radians(180)),
    Part.LineSegment(App.Vector(0, -29.8, 0), App.Vector(0, -45.8, 0)),
    Part.ArcOfCircle(Part.Circle(App.Vector(1, -45.8, 0), App.Vector(0, 0, 1), 1), math.radians(180), math.radians(360)),
], False)
sketch15.addConstraint([
    Sketcher.Constraint("Tangent", 0, 2, 1, 1),
    Sketcher.Constraint("Tangent", 1, 2, 2, 1),
    Sketcher.Constraint("Tangent", 2, 2, 3, 1),
    Sketcher.Constraint("Tangent", 3, 2, 0, 1),
    Sketcher.Constraint("Vertical", 0),
    Sketcher.Constraint("Vertical", 2),
    Sketcher.Constraint("PointOnObject", 1, 2, -2),
    Sketcher.Constraint("Radius", 1, 1.0),
    Sketcher.Constraint("DistanceY", 0, 1, 0, 2, 16.0),
    Sketcher.Constraint("DistanceY", 1, 3, -1, 1, 29.84),
])
pad12 = body.newObject("PartDesign::Pad", "Pad011")
pad12.Profile = sketch15
pad12.Length = 1
doc.recompute()

mirrored = body.newObject("PartDesign::Mirrored", "Mirrored")
mirrored.Originals = [pad12]
mirrored.MirrorPlane = (doc.getObject("YZ_Plane"), [""])
body.Tip = mirrored
doc.recompute()

fillet4 = body.newObject("PartDesign::Fillet", "Fillet003")
fillet4.Base = (mirrored, edges_at(mirrored, [
    (88.275, 4, 44.438),
    (88.275, 3, 35.438),
    (88.275, 4, 26.438),
    (88.275, 5, 35.438),
    (30.855, 4, -57.775),
    (21.855, 3, -57.775),
    (12.855, 4, -57.775),
    (21.855, 5, -57.775),
    (-56.032, 4, 57.775),
    (-47.032, 3, 57.775),
    (-38.032, 4, 57.775),
    (-47.032, 5, 57.775),
    (56.032, 4, 57.775),
    (47.032, 5, 57.775),
    (38.032, 4, 57.775),
    (47.032, 3, 57.775),
    (-88.275, 4, 26.438),
    (-88.275, 3, 35.438),
    (-88.275, 4, 44.438),
    (-88.275, 5, 35.438),
    (-69.15, 1, -57.775),
    (-60.15, 2, -57.775),
    (-51.15, 1, -57.775),
    (-60.15, 0, -57.775),
    (88.275, 1, -28.84),
    (88.275, 0, -37.84),
    (88.275, 1, -46.84),
    (88.275, 2, -37.84),
    (-88.275, 1, -28.84),
    (-88.275, 2, -37.84),
    (-88.275, 1, -46.84),
    (-88.275, 0, -37.84),
]))
fillet4.Radius = 0.5
doc.recompute()

chamfer2 = body.newObject("PartDesign::Chamfer", "Chamfer001")
chamfer2.Base = (fillet4, edges_at(fillet4, [
    (2.34, 0.5, -20.93),
    (-40.66, 0.5, 7.07),
    (-83.66, 0.5, -20.93),
    (-40.66, 0.5, -48.93),
]))
chamfer2.Size = 1

doc.recompute()
